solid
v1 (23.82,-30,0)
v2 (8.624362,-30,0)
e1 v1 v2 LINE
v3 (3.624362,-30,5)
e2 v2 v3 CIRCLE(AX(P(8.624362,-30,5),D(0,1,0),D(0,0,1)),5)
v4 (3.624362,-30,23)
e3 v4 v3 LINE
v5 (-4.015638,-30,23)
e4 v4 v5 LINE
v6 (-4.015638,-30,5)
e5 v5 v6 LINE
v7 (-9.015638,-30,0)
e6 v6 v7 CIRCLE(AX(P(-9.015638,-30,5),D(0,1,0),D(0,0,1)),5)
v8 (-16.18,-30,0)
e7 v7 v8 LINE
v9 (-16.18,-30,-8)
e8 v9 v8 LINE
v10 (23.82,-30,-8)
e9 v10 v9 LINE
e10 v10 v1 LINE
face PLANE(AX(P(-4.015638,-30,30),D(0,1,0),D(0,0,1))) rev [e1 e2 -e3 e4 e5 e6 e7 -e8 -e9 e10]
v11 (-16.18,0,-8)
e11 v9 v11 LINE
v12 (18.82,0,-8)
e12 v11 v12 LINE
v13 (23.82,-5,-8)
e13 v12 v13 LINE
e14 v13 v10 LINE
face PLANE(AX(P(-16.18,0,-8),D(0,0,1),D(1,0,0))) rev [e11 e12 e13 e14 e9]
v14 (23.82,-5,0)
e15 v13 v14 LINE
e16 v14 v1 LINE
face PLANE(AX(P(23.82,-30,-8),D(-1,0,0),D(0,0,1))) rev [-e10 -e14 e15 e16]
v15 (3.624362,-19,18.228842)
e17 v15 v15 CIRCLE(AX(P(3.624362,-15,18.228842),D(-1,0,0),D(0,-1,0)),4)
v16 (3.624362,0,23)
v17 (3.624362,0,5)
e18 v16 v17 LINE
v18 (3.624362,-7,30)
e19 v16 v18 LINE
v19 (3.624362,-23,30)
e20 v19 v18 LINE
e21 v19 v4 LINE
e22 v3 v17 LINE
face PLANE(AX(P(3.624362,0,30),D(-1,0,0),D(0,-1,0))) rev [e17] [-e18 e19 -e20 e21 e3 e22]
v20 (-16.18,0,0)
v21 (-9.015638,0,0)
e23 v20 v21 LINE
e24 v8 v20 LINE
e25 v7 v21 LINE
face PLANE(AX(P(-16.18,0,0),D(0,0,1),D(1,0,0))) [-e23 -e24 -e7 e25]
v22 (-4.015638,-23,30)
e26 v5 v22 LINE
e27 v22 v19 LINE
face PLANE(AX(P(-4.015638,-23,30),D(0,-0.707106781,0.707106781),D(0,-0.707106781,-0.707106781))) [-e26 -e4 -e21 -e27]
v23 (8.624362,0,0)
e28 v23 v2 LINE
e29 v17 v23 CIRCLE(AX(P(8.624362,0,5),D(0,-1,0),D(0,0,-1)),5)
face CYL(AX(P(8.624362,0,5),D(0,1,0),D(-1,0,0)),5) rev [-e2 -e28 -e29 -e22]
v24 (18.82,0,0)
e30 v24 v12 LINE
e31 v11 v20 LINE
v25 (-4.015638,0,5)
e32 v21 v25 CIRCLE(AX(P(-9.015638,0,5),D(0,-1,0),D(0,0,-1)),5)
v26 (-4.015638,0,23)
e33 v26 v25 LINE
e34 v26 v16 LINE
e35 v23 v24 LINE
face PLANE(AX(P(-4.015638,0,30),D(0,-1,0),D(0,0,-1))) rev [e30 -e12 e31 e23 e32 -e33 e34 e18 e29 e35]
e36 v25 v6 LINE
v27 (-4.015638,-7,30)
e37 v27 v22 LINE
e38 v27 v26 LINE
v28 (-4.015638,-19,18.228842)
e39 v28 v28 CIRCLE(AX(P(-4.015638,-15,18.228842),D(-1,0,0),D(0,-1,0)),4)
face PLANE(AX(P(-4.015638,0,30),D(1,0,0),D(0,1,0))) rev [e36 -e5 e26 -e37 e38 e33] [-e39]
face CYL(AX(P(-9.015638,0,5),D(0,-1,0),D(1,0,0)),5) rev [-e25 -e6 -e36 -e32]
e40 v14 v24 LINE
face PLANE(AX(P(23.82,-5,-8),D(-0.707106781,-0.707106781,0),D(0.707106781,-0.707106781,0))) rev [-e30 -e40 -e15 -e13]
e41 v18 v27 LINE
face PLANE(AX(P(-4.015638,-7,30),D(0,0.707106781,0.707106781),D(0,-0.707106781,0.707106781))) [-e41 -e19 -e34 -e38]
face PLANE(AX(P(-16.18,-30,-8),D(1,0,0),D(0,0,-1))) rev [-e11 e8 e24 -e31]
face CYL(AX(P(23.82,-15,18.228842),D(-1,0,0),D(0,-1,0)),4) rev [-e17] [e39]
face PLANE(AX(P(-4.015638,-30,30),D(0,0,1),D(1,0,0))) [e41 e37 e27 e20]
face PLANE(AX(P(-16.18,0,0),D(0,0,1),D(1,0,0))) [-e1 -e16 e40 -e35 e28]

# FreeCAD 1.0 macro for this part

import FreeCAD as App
import Part
import Sketcher
from FreeCAD import Vector
Q = App.Units.Quantity


def edges_at(feature, points):
    """Names of the edges that pass closest to the given points."""
    edges = feature.Shape.Edges
    near = lambda p: min(range(len(edges)), key=lambda i: edges[i].distToShape(Part.Vertex(*p))[0])
    return sorted({f"Edge{near(p) + 1}" for p in points})

doc = App.newDocument("Part")
body = doc.addObject("PartDesign::Body", "Body")

# Sketch on XY plane
sketch1 = body.newObject("Sketcher::SketchObject", "Sketch")
sketch1.AttachmentSupport = (doc.getObject("XY_Plane"), [""])
sketch1.MapMode = "FlatFace"
sketch1.addGeometry([
    Part.LineSegment(Vector(-4, 0, 0), Vector(-4, -30, 0)),
    Part.LineSegment(Vector(-4, -30, 0), Vector(4, -30, 0)),
    Part.LineSegment(Vector(4, -30, 0), Vector(4, 0, 0)),
    Part.LineSegment(Vector(4, 0, 0), Vector(-4, 0, 0)),
], False)
sketch1.addConstraint([
    Sketcher.Constraint("Coincident", 0, 2, 1, 1),
    Sketcher.Constraint("Coincident", 1, 2, 2, 1),
    Sketcher.Constraint("Coincident", 2, 2, 3, 1),
    Sketcher.Constraint("Coincident", 3, 2, 0, 1),
    Sketcher.Constraint("Vertical", 0),
    Sketcher.Constraint("Horizontal", 1),
    Sketcher.Constraint("Vertical", 2),
    Sketcher.Constraint("Horizontal", 3),
    Sketcher.Constraint("PointOnObject", 2, 2, -1),
    Sketcher.Constraint("DistanceY", 0, 2, 0, 1, Q("30 mm")),
    Sketcher.Constraint("DistanceX", 1, 1, 1, 2, Q("7.64 mm")),
    Sketcher.Constraint("DistanceX", 0, 2, -1, 1, Q("4.015638 mm")),
])
pad1 = body.newObject("PartDesign::Pad", "Pad")
pad1.Profile = sketch1
pad1.Length = 30

# Sketch on XY plane
sketch2 = body.newObject("Sketcher::SketchObject", "Sketch001")
sketch2.AttachmentSupport = (doc.getObject("XY_Plane"), [""])
sketch2.MapMode = "FlatFace"
sketch2.addGeometry([
    Part.LineSegment(Vector(24, 0, 0), Vector(24, -30, 0)),
    Part.LineSegment(Vector(24, -30, 0), Vector(-16, -30, 0)),
    Part.LineSegment(Vector(-16, -30, 0), Vector(-16, 0, 0)),
    Part.LineSegment(Vector(-16, 0, 0), Vector(24, 0, 0)),
], False)
sketch2.addConstraint([
    Sketcher.Constraint("Coincident", 0, 2, 1, 1),
    Sketcher.Constraint("Coincident", 1, 2, 2, 1),
    Sketcher.Constraint("Coincident", 2, 2, 3, 1),
    Sketcher.Constraint("Coincident", 3, 2, 0, 1),
    Sketcher.Constraint("Vertical", 0),
    Sketcher.Constraint("Horizontal", 1),
    Sketcher.Constraint("Vertical", 2),
    Sketcher.Constraint("Horizontal", 3),
    Sketcher.Constraint("PointOnObject", 2, 2, -1),
    Sketcher.Constraint("DistanceX", 1, 2, 1, 1, Q("40 mm")),
    Sketcher.Constraint("DistanceY", 0, 2, 0, 1, Q("30 mm")),
    Sketcher.Constraint("DistanceX", -1, 1, 0, 2, Q("23.82 mm")),
])
pad2 = body.newObject("PartDesign::Pad", "Pad001")
pad2.Profile = sketch2
pad2.Length = 8
pad2.Reversed = True
doc.recompute()

fillet = body.newObject("PartDesign::Fillet", "Fillet")
fillet.Base = (pad2, edges_at(pad2, [(-4.016, -15, 0), (3.624, -15, 0)]))
fillet.Radius = 5
doc.recompute()

chamfer = body.newObject("PartDesign::Chamfer", "Chamfer")
chamfer.Base = (fillet, edges_at(fillet, [(-0.196, -30, 30), (-0.196, 0, 30)]))
chamfer.Size = 7

# Sketch on YZ plane
sketch3 = body.newObject("Sketcher::SketchObject", "Sketch002")
sketch3.AttachmentSupport = (doc.getObject("YZ_Plane"), [""])
sketch3.MapMode = "FlatFace"
sketch3.AttachmentOffset = App.Placement(Vector(0, 0, -4.015638), App.Rotation())
sketch3.addGeometry(Part.Circle(Vector(-15, 18.2, 0), Vector(0, 0, 1), 4), False)
sketch3.addConstraint([
    Sketcher.Constraint("Diameter", 0, Q("8 mm")),
    Sketcher.Constraint("DistanceX", 0, 3, -1, 1, Q("15 mm")),
    Sketcher.Constraint("DistanceY", -1, 1, 0, 3, Q("18.228842 mm")),
])
pocket1 = body.newObject("PartDesign::Pocket", "Pocket")
pocket1.Profile = sketch3
pocket1.Type = "ThroughAll"
pocket1.Reversed = True
doc.recompute()

chamfer2 = body.newObject("PartDesign::Chamfer", "Chamfer001")
chamfer2.Base = (pocket1, edges_at(pocket1, [(23.82, 0, -4)]))
chamfer2.Size = 5

doc.recompute()
